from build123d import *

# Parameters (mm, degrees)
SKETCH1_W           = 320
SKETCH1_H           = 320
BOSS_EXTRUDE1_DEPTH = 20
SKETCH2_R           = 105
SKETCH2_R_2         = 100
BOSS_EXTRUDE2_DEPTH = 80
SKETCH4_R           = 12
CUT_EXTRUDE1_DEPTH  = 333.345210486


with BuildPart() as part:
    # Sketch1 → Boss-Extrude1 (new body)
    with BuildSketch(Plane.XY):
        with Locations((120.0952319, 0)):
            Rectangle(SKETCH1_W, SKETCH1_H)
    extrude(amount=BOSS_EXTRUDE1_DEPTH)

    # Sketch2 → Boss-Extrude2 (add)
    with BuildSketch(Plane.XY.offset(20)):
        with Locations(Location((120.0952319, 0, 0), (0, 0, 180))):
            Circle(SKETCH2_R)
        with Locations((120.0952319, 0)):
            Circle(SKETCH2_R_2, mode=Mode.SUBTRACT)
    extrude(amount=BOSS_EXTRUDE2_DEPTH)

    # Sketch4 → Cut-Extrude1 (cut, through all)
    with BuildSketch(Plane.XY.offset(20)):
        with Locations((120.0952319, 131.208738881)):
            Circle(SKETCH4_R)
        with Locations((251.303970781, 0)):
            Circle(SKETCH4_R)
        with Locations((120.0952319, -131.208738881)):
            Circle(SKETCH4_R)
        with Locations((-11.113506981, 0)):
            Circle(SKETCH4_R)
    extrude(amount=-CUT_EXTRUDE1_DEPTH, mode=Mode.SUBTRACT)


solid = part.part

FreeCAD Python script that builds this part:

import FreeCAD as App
import Part
import Sketcher
from FreeCAD import Vector
Q = App.Units.Quantity

doc = App.newDocument("Part")
params = doc.addObject("Spreadsheet::Sheet", "Params")
for row, (alias, value) in enumerate([
    ("sketch1_width", "320 mm"),
    ("pad1_length", "20 mm"),
    ("sketch2_diameter", "210 mm"),
    ("sketch2_diameter2", "200 mm"),
    ("pad2_length", "80 mm"),
    ("sketch3_diameter", "24 mm"),
], start=1):
    params.set(f"A{row}", alias)
    params.set(f"B{row}", "=" + value)
    params.setAlias(f"B{row}", alias)

body = doc.addObject("PartDesign::Body", "Body")

# Sketch on XY plane
sketch1 = body.newObject("Sketcher::SketchObject", "Sketch")
sketch1.AttachmentSupport = (doc.getObject("XY_Plane"), [""])
sketch1.MapMode = "FlatFace"
sketch1.addGeometry([
    Part.LineSegment(Vector(-39.904768, 160, 0), Vector(-39.904768, -160, 0)),
    Part.LineSegment(Vector(-39.904768, -160, 0), Vector(280.095232, -160, 0)),
    Part.LineSegment(Vector(280.095232, -160, 0), Vector(280.095232, 160, 0)),
    Part.LineSegment(Vector(280.095232, 160, 0), Vector(-39.904768, 160, 0)),
], False)
sketch1.addConstraint([
    Sketcher.Constraint("Coincident", 0, 2, 1, 1),
    Sketcher.Constraint("Coincident", 1, 2, 2, 1),
    Sketcher.Constraint("Coincident", 2, 2, 3, 1),
    Sketcher.Constraint("Coincident", 3, 2, 0, 1),
    Sketcher.Constraint("Vertical", 0),
    Sketcher.Constraint("Horizontal", 1),
    Sketcher.Constraint("Vertical", 2),
    Sketcher.Constraint("Horizontal", 3),
    Sketcher.Constraint("Equal", 3, 0),
    Sketcher.Constraint("DistanceX", 1, 1, 1, 2, Q("320 mm")),
    Sketcher.Constraint("DistanceY", 0, 2, -1, 1, Q("160 mm")),
    Sketcher.Constraint("DistanceX", 0, 2, -1, 1, Q("39.904768 mm")),
])
sketch1.setExpression("Constraints[9]", "Params.sketch1_width")
pad1 = body.newObject("PartDesign::Pad", "Pad")
pad1.Profile = sketch1
pad1.setExpression("Length", "Params.pad1_length")

# Sketch on XY plane
sketch2 = body.newObject("Sketcher::SketchObject", "Sketch001")
sketch2.AttachmentSupport = (doc.getObject("XY_Plane"), [""])
sketch2.MapMode = "FlatFace"
sketch2.AttachmentOffset = App.Placement(Vector(0, 0, 20), App.Rotation())
sketch2.addGeometry([
    Part.Circle(Vector(120.095232, 0, 0), Vector(0, 0, 1), 105),
    Part.Circle(Vector(120.095232, 0, 0), Vector(0, 0, 1), 100),
], False)
sketch2.addConstraint([
    Sketcher.Constraint("Coincident", 1, 3, 0, 3),
    Sketcher.Constraint("PointOnObject", 0, 3, -1),
    Sketcher.Constraint("Diameter", 0, Q("210 mm")),
    Sketcher.Constraint("Diameter", 1, Q("200 mm")),
    Sketcher.Constraint("DistanceX", -1, 1, 0, 3, Q("120.095232 mm")),
])
sketch2.setExpression("Constraints[2]", "Params.sketch2_diameter")
sketch2.setExpression("Constraints[3]", "Params.sketch2_diameter2")
pad2 = body.newObject("PartDesign::Pad", "Pad001")
pad2.Profile = sketch2
pad2.setExpression("Length", "Params.pad2_length")

# Sketch on XY plane
sketch3 = body.newObject("Sketcher::SketchObject", "Sketch002")
sketch3.AttachmentSupport = (doc.getObject("XY_Plane"), [""])
sketch3.MapMode = "FlatFace"
sketch3.AttachmentOffset = App.Placement(Vector(0, 0, 20), App.Rotation())
sketch3.addGeometry([
    Part.Circle(Vector(120.095232, 131.208739, 0), Vector(0, 0, 1), 12),
    Part.Circle(Vector(251.303971, 0, 0), Vector(0, 0, 1), 12),
    Part.Circle(Vector(120.095232, -131.208739, 0), Vector(0, 0, 1), 12),
    Part.Circle(Vector(-11.113507, 0, 0), Vector(0, 0, 1), 12),
], False)
sketch3.addConstraint([
    Sketcher.Constraint("Equal", 0, 1),
    Sketcher.Constraint("Equal", 1, 2),
    Sketcher.Constraint("Equal", 2, 3),
    Sketcher.Constraint("Symmetric", 0, 3, 2, 3, -1),
    Sketcher.Constraint("PointOnObject", 1, 3, -1),
    Sketcher.Constraint("PointOnObject", 3, 3, -1),
    Sketcher.Constraint("Diameter", 0, Q("24 mm")),
    Sketcher.Constraint("DistanceX", -1, 1, 0, 3, Q("120.095232 mm")),
    Sketcher.Constraint("DistanceY", -1, 1, 0, 3, Q("131.208739 mm")),
    Sketcher.Constraint("DistanceX", -1, 1, 1, 3, Q("251.303971 mm")),
    Sketcher.Constraint("DistanceX", 3, 3, 0, 3, Q("131.208739 mm")),
])
sketch3.setExpression("Constraints[6]", "Params.sketch3_diameter")
pocket1 = body.newObject("PartDesign::Pocket", "Pocket")
pocket1.Profile = sketch3
pocket1.Type = "ThroughAll"

doc.recompute()
